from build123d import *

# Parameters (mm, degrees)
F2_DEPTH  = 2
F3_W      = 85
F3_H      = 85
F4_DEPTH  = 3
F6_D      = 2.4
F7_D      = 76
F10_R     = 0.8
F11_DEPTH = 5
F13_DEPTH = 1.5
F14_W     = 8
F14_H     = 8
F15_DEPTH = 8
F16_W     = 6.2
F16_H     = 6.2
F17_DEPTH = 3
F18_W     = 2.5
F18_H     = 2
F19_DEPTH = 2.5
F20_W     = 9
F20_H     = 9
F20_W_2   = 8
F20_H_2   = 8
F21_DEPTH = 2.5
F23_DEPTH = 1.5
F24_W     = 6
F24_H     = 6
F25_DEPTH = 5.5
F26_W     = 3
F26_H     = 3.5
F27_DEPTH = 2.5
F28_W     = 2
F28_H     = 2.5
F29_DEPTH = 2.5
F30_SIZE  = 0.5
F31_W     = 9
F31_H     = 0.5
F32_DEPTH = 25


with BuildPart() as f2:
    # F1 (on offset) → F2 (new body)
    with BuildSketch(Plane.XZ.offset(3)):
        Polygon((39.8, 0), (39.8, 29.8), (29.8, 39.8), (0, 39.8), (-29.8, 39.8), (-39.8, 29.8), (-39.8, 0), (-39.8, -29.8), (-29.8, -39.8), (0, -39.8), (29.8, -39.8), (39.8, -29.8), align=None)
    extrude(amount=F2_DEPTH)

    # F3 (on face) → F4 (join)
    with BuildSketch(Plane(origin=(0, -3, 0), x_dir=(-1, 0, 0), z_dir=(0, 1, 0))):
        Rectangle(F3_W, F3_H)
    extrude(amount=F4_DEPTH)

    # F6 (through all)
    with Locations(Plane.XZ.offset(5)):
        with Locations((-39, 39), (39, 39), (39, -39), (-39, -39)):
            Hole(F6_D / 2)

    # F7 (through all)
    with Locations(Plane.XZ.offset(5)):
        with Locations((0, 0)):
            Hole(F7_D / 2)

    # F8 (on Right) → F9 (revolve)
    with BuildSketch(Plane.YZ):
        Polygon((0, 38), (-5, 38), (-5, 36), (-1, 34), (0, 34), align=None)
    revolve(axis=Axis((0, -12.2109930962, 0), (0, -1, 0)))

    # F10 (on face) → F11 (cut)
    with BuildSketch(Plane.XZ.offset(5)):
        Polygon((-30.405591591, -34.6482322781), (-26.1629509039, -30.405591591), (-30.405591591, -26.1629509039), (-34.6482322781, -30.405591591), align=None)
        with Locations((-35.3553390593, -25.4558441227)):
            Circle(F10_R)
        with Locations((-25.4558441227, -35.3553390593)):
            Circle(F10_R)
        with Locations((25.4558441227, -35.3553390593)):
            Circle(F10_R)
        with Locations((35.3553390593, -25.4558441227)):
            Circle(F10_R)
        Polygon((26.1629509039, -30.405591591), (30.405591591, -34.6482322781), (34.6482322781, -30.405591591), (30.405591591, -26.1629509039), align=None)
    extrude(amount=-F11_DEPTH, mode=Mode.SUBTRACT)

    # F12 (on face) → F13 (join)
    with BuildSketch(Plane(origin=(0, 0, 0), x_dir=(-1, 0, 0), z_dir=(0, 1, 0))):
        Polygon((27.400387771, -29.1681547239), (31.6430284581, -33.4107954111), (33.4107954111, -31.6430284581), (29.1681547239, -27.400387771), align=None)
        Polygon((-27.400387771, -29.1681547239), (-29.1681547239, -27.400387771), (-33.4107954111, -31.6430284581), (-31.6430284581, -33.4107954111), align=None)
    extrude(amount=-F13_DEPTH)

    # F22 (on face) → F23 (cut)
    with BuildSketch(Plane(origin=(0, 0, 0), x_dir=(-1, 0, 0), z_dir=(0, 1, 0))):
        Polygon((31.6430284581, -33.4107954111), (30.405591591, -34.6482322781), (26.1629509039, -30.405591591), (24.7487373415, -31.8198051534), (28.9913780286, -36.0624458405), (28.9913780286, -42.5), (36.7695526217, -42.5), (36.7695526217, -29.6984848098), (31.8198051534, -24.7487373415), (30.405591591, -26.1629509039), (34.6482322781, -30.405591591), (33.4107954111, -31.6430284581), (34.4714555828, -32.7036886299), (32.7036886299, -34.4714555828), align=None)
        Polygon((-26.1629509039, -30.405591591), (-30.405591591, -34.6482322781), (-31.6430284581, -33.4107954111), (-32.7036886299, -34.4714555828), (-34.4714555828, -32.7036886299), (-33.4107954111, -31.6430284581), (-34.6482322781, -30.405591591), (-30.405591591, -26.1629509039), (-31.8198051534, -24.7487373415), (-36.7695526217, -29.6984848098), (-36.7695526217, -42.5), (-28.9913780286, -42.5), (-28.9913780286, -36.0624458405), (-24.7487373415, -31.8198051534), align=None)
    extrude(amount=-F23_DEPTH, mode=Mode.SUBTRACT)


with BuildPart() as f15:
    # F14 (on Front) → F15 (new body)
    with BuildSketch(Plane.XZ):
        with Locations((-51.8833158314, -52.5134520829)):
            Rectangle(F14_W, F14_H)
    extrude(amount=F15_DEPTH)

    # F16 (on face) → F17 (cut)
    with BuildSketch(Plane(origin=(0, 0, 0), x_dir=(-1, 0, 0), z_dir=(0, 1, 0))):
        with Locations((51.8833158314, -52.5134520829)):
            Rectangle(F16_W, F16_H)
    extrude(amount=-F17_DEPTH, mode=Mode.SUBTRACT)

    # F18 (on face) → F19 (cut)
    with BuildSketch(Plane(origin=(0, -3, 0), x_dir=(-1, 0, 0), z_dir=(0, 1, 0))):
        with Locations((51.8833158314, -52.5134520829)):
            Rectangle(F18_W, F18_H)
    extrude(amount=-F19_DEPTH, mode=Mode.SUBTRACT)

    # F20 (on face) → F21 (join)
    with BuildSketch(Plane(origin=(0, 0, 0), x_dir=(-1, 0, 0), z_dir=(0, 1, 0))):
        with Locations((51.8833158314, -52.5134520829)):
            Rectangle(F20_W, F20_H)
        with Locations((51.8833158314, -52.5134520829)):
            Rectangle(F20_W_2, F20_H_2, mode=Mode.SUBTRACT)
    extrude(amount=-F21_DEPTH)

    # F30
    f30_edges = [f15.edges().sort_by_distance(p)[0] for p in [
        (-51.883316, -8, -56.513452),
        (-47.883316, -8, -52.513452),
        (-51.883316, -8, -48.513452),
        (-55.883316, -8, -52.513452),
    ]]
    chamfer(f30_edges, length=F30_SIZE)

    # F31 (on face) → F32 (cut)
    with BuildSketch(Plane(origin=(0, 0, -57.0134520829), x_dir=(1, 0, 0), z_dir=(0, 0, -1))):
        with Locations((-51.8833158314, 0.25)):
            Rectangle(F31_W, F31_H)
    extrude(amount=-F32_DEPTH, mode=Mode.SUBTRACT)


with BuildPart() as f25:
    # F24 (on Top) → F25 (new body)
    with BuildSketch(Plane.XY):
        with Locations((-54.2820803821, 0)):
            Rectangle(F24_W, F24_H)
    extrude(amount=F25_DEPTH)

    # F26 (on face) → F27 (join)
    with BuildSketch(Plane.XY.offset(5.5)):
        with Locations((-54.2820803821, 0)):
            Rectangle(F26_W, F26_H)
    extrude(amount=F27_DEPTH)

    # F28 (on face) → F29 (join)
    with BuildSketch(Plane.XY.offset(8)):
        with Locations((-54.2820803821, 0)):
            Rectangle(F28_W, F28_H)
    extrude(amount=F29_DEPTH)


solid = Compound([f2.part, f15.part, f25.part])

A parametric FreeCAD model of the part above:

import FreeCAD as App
import Part
import Sketcher
Q = App.Units.Quantity


def edges_at(feature, points):
    """Names of the edges that pass closest to the given points."""
    edges = feature.Shape.Edges
    near = lambda p: min(range(len(edges)), key=lambda i: edges[i].distToShape(Part.Vertex(*p))[0])
    return sorted({f"Edge{near(p) + 1}" for p in points})


def add_polygon(sketch, points):
    """Adds a closed chain of lines whose ends are joined by coincident constraints."""
    first, n = sketch.GeometryCount, len(points)
    for a, b in zip(points, points[1:] + points[:1]):
        sketch.addGeometry(Part.LineSegment(App.Vector(*a, 0), App.Vector(*b, 0)), False)
    for i in range(n):
        sketch.addConstraint(Sketcher.Constraint("Coincident", first + i, 2, first + (i + 1) % n, 1))

doc = App.newDocument("Part")
body = doc.addObject("PartDesign::Body", "Body")

# Sketch on XZ plane
sketch1 = body.newObject("Sketcher::SketchObject", "Sketch")
sketch1.AttachmentSupport = (doc.getObject("XZ_Plane"), [""])
sketch1.MapMode = "FlatFace"
sketch1.AttachmentOffset = App.Placement(App.Vector(0, 0, 3), App.Rotation())
add_polygon(sketch1, [(40, 30), (30, 40), (-30, 40), (-40, 30), (-40, -30), (-30, -40), (30, -40), (40, -30)])  # lines 0-7
sketch1.addConstraint([
    Sketcher.Constraint("Horizontal", 1),
    Sketcher.Constraint("Vertical", 3),
    Sketcher.Constraint("Horizontal", 5),
    Sketcher.Constraint("Vertical", 7),
    Sketcher.Constraint("Symmetric", 0, 2, 4, 2, -1, 1),
    Sketcher.Constraint("Symmetric", 2, 2, 6, 2, -1, 1),
    Sketcher.Constraint("Perpendicular", 0, 2),
    Sketcher.Constraint("Perpendicular", 2, 4),
    Sketcher.Constraint("Perpendicular", 4, 6),
    Sketcher.Constraint("Horizontal", 3, 2, 6, 2),
    Sketcher.Constraint("Vertical", 1, 2, 4, 2),
    Sketcher.Constraint("Equal", 5, 3),
    Sketcher.Constraint("DistanceX", 1, 2, 1, 1, Q("59.6 mm")),
    Sketcher.Constraint("DistanceX", 2, 2, 1, 2, Q("10 mm")),
])
pad1 = body.newObject("PartDesign::Pad", "Pad")
pad1.Profile = sketch1
pad1.Length = 2

# Sketch on XZ plane
sketch2 = body.newObject("Sketcher::SketchObject", "Sketch001")
sketch2.AttachmentSupport = (doc.getObject("XZ_Plane"), [""])
sketch2.MapMode = "FlatFace"
sketch2.AttachmentOffset = App.Placement(App.Vector(0, 0, 3), App.Rotation())
add_polygon(sketch2, [(42, 42), (42, -42), (-42, -42), (-42, 42)])  # lines 0-3
sketch2.addConstraint([
    Sketcher.Constraint("Vertical", 0),
    Sketcher.Constraint("Horizontal", 1),
    Sketcher.Constraint("Vertical", 2),
    Sketcher.Constraint("Horizontal", 3),
    Sketcher.Constraint("Symmetric", 0, 2, 2, 2, -1, 1),
    Sketcher.Constraint("Equal", 3, 0),
    Sketcher.Constraint("DistanceX", 1, 2, 1, 1, Q("85 mm")),
])
pad2 = body.newObject("PartDesign::Pad", "Pad001")
pad2.Profile = sketch2
pad2.Length = 3
pad2.Reversed = True

# Sketch on XZ plane
sketch3 = body.newObject("Sketcher::SketchObject", "Sketch002")
sketch3.AttachmentSupport = (doc.getObject("XZ_Plane"), [""])
sketch3.MapMode = "FlatFace"
sketch3.AttachmentOffset = App.Placement(App.Vector(0, 0, 5), App.Rotation())
sketch3.addGeometry([
    Part.Circle(App.Vector(-39, 39, 0), App.Vector(0, 0, 1), 1.2),
    Part.Circle(App.Vector(39, 39, 0), App.Vector(0, 0, 1), 1.2),
    Part.Circle(App.Vector(39, -39, 0), App.Vector(0, 0, 1), 1.2),
    Part.Circle(App.Vector(-39, -39, 0), App.Vector(0, 0, 1), 1.2),
], False)
sketch3.addConstraint([
    Sketcher.Constraint("Equal", 0, 1),
    Sketcher.Constraint("Equal", 1, 2),
    Sketcher.Constraint("Equal", 2, 3),
    Sketcher.Constraint("Symmetric", 0, 3, 2, 3, -1, 1),
    Sketcher.Constraint("Symmetric", 1, 3, 3, 3, -1, 1),
    Sketcher.Constraint("Symmetric", 0, 3, 1, 3, -2),
    Sketcher.Constraint("Diameter", 0, Q("2.4 mm")),
    Sketcher.Constraint("DistanceX", 0, 3, -1, 1, Q("39 mm")),
    Sketcher.Constraint("DistanceY", -1, 1, 0, 3, Q("39 mm")),
])
doc.recompute()
hole = body.newObject("PartDesign::Hole", "Hole")
hole.Profile = sketch3
hole.ThreadType = "None"
hole.Diameter = 2.4
hole.DepthType = "ThroughAll"

# Sketch on XZ plane
sketch4 = body.newObject("Sketcher::SketchObject", "Sketch003")
sketch4.AttachmentSupport = (doc.getObject("XZ_Plane"), [""])
sketch4.MapMode = "FlatFace"
sketch4.AttachmentOffset = App.Placement(App.Vector(0, 0, 5), App.Rotation())
sketch4.addGeometry(Part.Circle(App.Vector(0, 0, 0), App.Vector(0, 0, 1), 38), False)
sketch4.addConstraint([
    Sketcher.Constraint("Coincident", 0, 3, -1, 1),
    Sketcher.Constraint("Diameter", 0, Q("76 mm")),
])
doc.recompute()
hole2 = body.newObject("PartDesign::Hole", "Hole001")
hole2.Profile = sketch4
hole2.ThreadType = "None"
hole2.Diameter = 76
hole2.DepthType = "ThroughAll"

# Sketch on YZ plane
sketch5 = body.newObject("Sketcher::SketchObject", "Sketch004")
sketch5.AttachmentSupport = (doc.getObject("YZ_Plane"), [""])
sketch5.MapMode = "FlatFace"
add_polygon(sketch5, [(0, 38), (-5, 38), (-5, 36), (-1, 34), (0, 34)])  # lines 0-4
sketch5.addConstraint([
    Sketcher.Constraint("Horizontal", 0),
    Sketcher.Constraint("Vertical", 1),
    Sketcher.Constraint("Horizontal", 3),
    Sketcher.Constraint("Vertical", 4),
    Sketcher.Constraint("PointOnObject", 3, 2, -2),
    Sketcher.Constraint("DistanceX", 0, 2, 0, 1, Q("5 mm")),
    Sketcher.Constraint("DistanceX", 3, 1, 3, 2, Q("1 mm")),
    Sketcher.Constraint("DistanceY", 1, 2, 1, 1, Q("2 mm")),
    Sketcher.Constraint("DistanceY", 4, 1, 4, 2, Q("4 mm")),
    Sketcher.Constraint("DistanceY", -1, 1, 0, 2, Q("38 mm")),
])
revolution = body.newObject("PartDesign::Revolution", "Revolution")
revolution.Profile = sketch5
revolution.ReferenceAxis = (sketch5, ["H_Axis"])
revolution.Angle = 360

# Sketch on XZ plane
sketch6 = body.newObject("Sketcher::SketchObject", "Sketch005")
sketch6.AttachmentSupport = (doc.getObject("XZ_Plane"), [""])
sketch6.MapMode = "FlatFace"
sketch6.AttachmentOffset = App.Placement(App.Vector(0, 0, 5), App.Rotation())
add_polygon(sketch6, [(-30.4, -34.6), (-26.2, -30.4), (-30.4, -26.2), (-34.6, -30.4)])  # lines 0-3
sketch6.addGeometry(Part.Circle(App.Vector(-35.4, -25.5, 0), App.Vector(0, 0, 1), 0.8), False)  # 4
sketch6.addGeometry(Part.Circle(App.Vector(-25.5, -35.4, 0), App.Vector(0, 0, 1), 0.8), False)  # 5
sketch6.addGeometry(Part.Circle(App.Vector(25.5, -35.4, 0), App.Vector(0, 0, 1), 0.8), False)  # 6
sketch6.addGeometry(Part.Circle(App.Vector(35.4, -25.5, 0), App.Vector(0, 0, 1), 0.8), False)  # 7
add_polygon(sketch6, [(26.2, -30.4), (30.4, -34.6), (34.6, -30.4), (30.4, -26.2)])  # lines 8-11
sketch6.addConstraint([
    Sketcher.Constraint("Equal", 4, 5),
    Sketcher.Constraint("Equal", 5, 6),
    Sketcher.Constraint("Equal", 6, 7),
    Sketcher.Constraint("Symmetric", 5, 3, 6, 3, -2),
    Sketcher.Constraint("Symmetric", 4, 3, 7, 3, -2),
    Sketcher.Constraint("Symmetric", 3, 2, 8, 2, -2),
    Sketcher.Constraint("Symmetric", 2, 2, 9, 2, -2),
    Sketcher.Constraint("Symmetric", 1, 2, 10, 2, -2),
    Sketcher.Constraint("Symmetric", 0, 2, 11, 2, -2),
    Sketcher.Constraint("Perpendicular", 0, 1),
    Sketcher.Constraint("Perpendicular", 1, 2),
    Sketcher.Constraint("Perpendicular", 2, 3),
    Sketcher.Constraint("Parallel", 3, 8),
    Sketcher.Constraint("Horizontal", 0, 2, 2, 2),
    Sketcher.Constraint("Diameter", 4, Q("1.6 mm")),
    Sketcher.Constraint("Distance", 0, Q("6 mm")),
    Sketcher.Constraint("DistanceX", 4, 3, -1, 1, Q("35.355339 mm")),
    Sketcher.Constraint("DistanceY", 5, 3, -1, 1, Q("35.355339 mm")),
    Sketcher.Constraint("DistanceX", 0, 2, -1, 1, Q("26.162951 mm")),
    Sketcher.Constraint("DistanceY", 0, 2, -1, 1, Q("30.405592 mm")),
    Sketcher.Constraint("DistanceX", 5, 3, 6, 3, Q("50.911688 mm")),
    Sketcher.Constraint("DistanceY", 3, 2, 4, 3, Q("9.192388 mm")),
])
pocket1 = body.newObject("PartDesign::Pocket", "Pocket")
pocket1.Profile = sketch6
pocket1.Length = 5

# Sketch on XZ plane
sketch7 = body.newObject("Sketcher::SketchObject", "Sketch006")
sketch7.AttachmentSupport = (doc.getObject("XZ_Plane"), [""])
sketch7.MapMode = "FlatFace"
add_polygon(sketch7, [(-27.4, -29.2), (-31.6, -33.4), (-33.4, -31.6), (-29.2, -27.4)])  # lines 0-3
add_polygon(sketch7, [(27.4, -29.2), (29.2, -27.4), (33.4, -31.6), (31.6, -33.4)])  # lines 4-7
sketch7.addConstraint([
    Sketcher.Constraint("Symmetric", 2, 2, 4, 2, -2),
    Sketcher.Constraint("Symmetric", 1, 2, 5, 2, -2),
    Sketcher.Constraint("Symmetric", 0, 2, 6, 2, -2),
    Sketcher.Constraint("Symmetric", 3, 2, 7, 2, -2),
    Sketcher.Constraint("Perpendicular", 0, 1),
    Sketcher.Constraint("Perpendicular", 1, 2),
    Sketcher.Constraint("Perpendicular", 2, 3),
    Sketcher.Constraint("Perpendicular", 3, 4),
    Sketcher.Constraint("Distance", 0, Q("6 mm")),
    Sketcher.Constraint("Distance", 1, Q("2.5 mm")),
    Sketcher.Constraint("DistanceX", 0, 2, -1, 1, Q("31.643028 mm")),
    Sketcher.Constraint("DistanceY", 1, 2, -1, 1, Q("31.643028 mm")),
])
pad3 = body.newObject("PartDesign::Pad", "Pad002")
pad3.Profile = sketch7
pad3.Length = 1.5

# Sketch on XZ plane
sketch8 = body.newObject("Sketcher::SketchObject", "Sketch007")
sketch8.AttachmentSupport = (doc.getObject("XZ_Plane"), [""])
sketch8.MapMode = "FlatFace"
add_polygon(sketch8, [(-31.6, -33.4), (-30.4, -34.6), (-26.2, -30.4), (-24.7, -31.8), (-29, -36.1), (-29, -42.5), (-36.8, -42.5), (-36.8, -29.7), (-31.8, -24.7), (-30.4, -26.2), (-34.6, -30.4), (-33.4, -31.6), (-34.5, -32.7), (-32.7, -34.5)])  # lines 0-13
add_polygon(sketch8, [(26.2, -30.4), (30.4, -34.6), (31.6, -33.4), (32.7, -34.5), (34.5, -32.7), (33.4, -31.6), (34.6, -30.4), (30.4, -26.2), (31.8, -24.7), (36.8, -29.7), (36.8, -42.5), (29, -42.5), (29, -36.1), (24.7, -31.8)])  # lines 14-27
sketch8.addConstraint([
    Sketcher.Constraint("Vertical", 4),
    Sketcher.Constraint("Horizontal", 5),
    Sketcher.Constraint("Vertical", 6),
    Sketcher.Constraint("Vertical", 23),
    Sketcher.Constraint("Horizontal", 24),
    Sketcher.Constraint("Vertical", 25),
    Sketcher.Constraint("Symmetric", 0, 2, 14, 2, -2),
    Sketcher.Constraint("Symmetric", 13, 2, 15, 2, -2),
    Sketcher.Constraint("Symmetric", 12, 2, 16, 2, -2),
    Sketcher.Constraint("Symmetric", 11, 2, 17, 2, -2),
    Sketcher.Constraint("Symmetric", 10, 2, 18, 2, -2),
    Sketcher.Constraint("Symmetric", 9, 2, 19, 2, -2),
    Sketcher.Constraint("Symmetric", 8, 2, 20, 2, -2),
    Sketcher.Constraint("Symmetric", 7, 2, 21, 2, -2),
    Sketcher.Constraint("Symmetric", 6, 2, 22, 2, -2),
    Sketcher.Constraint("Symmetric", 4, 2, 24, 2, -2),
    Sketcher.Constraint("Symmetric", 2, 2, 26, 2, -2),
    Sketcher.Constraint("Symmetric", 1, 2, 27, 2, -2),
    Sketcher.Constraint("Perpendicular", 0, 1),
    Sketcher.Constraint("Perpendicular", 1, 2),
    Sketcher.Constraint("Perpendicular", 2, 3),
    Sketcher.Constraint("Parallel", 3, 7),
    Sketcher.Constraint("Perpendicular", 7, 8),
    Sketcher.Constraint("Perpendicular", 8, 9),
    Sketcher.Constraint("Perpendicular", 9, 10),
    Sketcher.Constraint("Perpendicular", 10, 11),
    Sketcher.Constraint("Perpendicular", 11, 12),
    Sketcher.Constraint("Perpendicular", 12, 13),
    Sketcher.Constraint("Perpendicular", 13, 14),
    Sketcher.Constraint("Parallel", 22, 26),
    Sketcher.Constraint("Horizontal", 1, 2, 9, 2),
    Sketcher.Constraint("Vertical", 0, 2, 8, 2),
    Sketcher.Constraint("Equal", 1, 3),
    Sketcher.Constraint("Equal", 2, 8),
    Sketcher.Constraint("Equal", 3, 9),
    Sketcher.Constraint("Equal", 0, 10),
    Sketcher.Constraint("Distance", 1, Q("6 mm")),
    Sketcher.Constraint("Distance", 2, Q("2 mm")),
    Sketcher.Constraint("Distance", 7, Q("7 mm")),
    Sketcher.Constraint("Distance", 11, Q("1.5 mm")),
    Sketcher.Constraint("Distance", 12, Q("2.5 mm")),
    Sketcher.Constraint("DistanceY", 4, 2, -1, 1, Q("42.5 mm")),
    Sketcher.Constraint("DistanceY", 4, 2, 4, 1, Q("6.437554 mm")),
    Sketcher.Constraint("DistanceX", 0, 2, -1, 1, Q("30.405592 mm")),
])
pocket2 = body.newObject("PartDesign::Pocket", "Pocket001")
pocket2.Profile = sketch8
pocket2.Length = 1.5
pocket2.Reversed = True
body2 = doc.addObject("PartDesign::Body", "Body001")

# Sketch on XZ plane
sketch9 = body2.newObject("Sketcher::SketchObject", "Sketch008")
sketch9.AttachmentSupport = (doc.getObject("XZ_Plane001"), [""])
sketch9.MapMode = "FlatFace"
add_polygon(sketch9, [(-56, -49), (-56, -57), (-48, -57), (-48, -49)])  # lines 0-3
sketch9.addConstraint([
    Sketcher.Constraint("Vertical", 0),
    Sketcher.Constraint("Horizontal", 1),
    Sketcher.Constraint("Vertical", 2),
    Sketcher.Constraint("Horizontal", 3),
    Sketcher.Constraint("Equal", 3, 0),
    Sketcher.Constraint("DistanceX", 1, 1, 1, 2, Q("8 mm")),
    Sketcher.Constraint("DistanceX", 0, 2, -1, 1, Q("55.883316 mm")),
    Sketcher.Constraint("DistanceY", 0, 2, -1, 1, Q("56.513452 mm")),
])
pad4 = body2.newObject("PartDesign::Pad", "Pad003")
pad4.Profile = sketch9
pad4.Length = 8

# Sketch on XZ plane
sketch10 = body2.newObject("Sketcher::SketchObject", "Sketch009")
sketch10.AttachmentSupport = (doc.getObject("XZ_Plane001"), [""])
sketch10.MapMode = "FlatFace"
add_polygon(sketch10, [(-49, -49), (-49, -56), (-55, -56), (-55, -49)])  # lines 0-3
sketch10.addConstraint([
    Sketcher.Constraint("Vertical", 0),
    Sketcher.Constraint("Horizontal", 1),
    Sketcher.Constraint("Vertical", 2),
    Sketcher.Constraint("Horizontal", 3),
    Sketcher.Constraint("Equal", 3, 0),
    Sketcher.Constraint("DistanceX", 1, 2, 1, 1, Q("6.2 mm")),
    Sketcher.Constraint("DistanceX", 0, 2, -1, 1, Q("48.783316 mm")),
    Sketcher.Constraint("DistanceY", 0, 2, -1, 1, Q("55.613452 mm")),
])
pocket3 = body2.newObject("PartDesign::Pocket", "Pocket002")
pocket3.Profile = sketch10
pocket3.Length = 3
pocket3.Reversed = True

# Sketch on XZ plane
sketch11 = body2.newObject("Sketcher::SketchObject", "Sketch010")
sketch11.AttachmentSupport = (doc.getObject("XZ_Plane001"), [""])
sketch11.MapMode = "FlatFace"
sketch11.AttachmentOffset = App.Placement(App.Vector(0, 0, 3), App.Rotation())
add_polygon(sketch11, [(-50.6, -51.5), (-50.6, -53.5), (-53.1, -53.5), (-53.1, -51.5)])  # lines 0-3
sketch11.addConstraint([
    Sketcher.Constraint("Vertical", 0),
    Sketcher.Constraint("Horizontal", 1),
    Sketcher.Constraint("Vertical", 2),
    Sketcher.Constraint("Horizontal", 3),
    Sketcher.Constraint("DistanceY", 0, 2, 0, 1, Q("2 mm")),
    Sketcher.Constraint("DistanceX", 1, 2, 1, 1, Q("2.5 mm")),
    Sketcher.Constraint("DistanceX", 0, 2, -1, 1, Q("50.633316 mm")),
    Sketcher.Constraint("DistanceY", 0, 2, -1, 1, Q("53.513452 mm")),
])
pocket4 = body2.newObject("PartDesign::Pocket", "Pocket003")
pocket4.Profile = sketch11
pocket4.Length = 2.5
pocket4.Reversed = True

# Sketch on XZ plane
sketch12 = body2.newObject("Sketcher::SketchObject", "Sketch011")
sketch12.AttachmentSupport = (doc.getObject("XZ_Plane001"), [""])
sketch12.MapMode = "FlatFace"
add_polygon(sketch12, [(-47, -48), (-47, -57), (-56, -57), (-56, -48)])  # lines 0-3
add_polygon(sketch12, [(-56, -57), (-48, -57), (-48, -49), (-56, -49)])  # lines 4-7
sketch12.addConstraint([
    Sketcher.Constraint("Vertical", 0),
    Sketcher.Constraint("Horizontal", 1),
    Sketcher.Constraint("Vertical", 2),
    Sketcher.Constraint("Horizontal", 3),
    Sketcher.Constraint("Horizontal", 4),
    Sketcher.Constraint("Vertical", 5),
    Sketcher.Constraint("Horizontal", 6),
    Sketcher.Constraint("Vertical", 7),
    Sketcher.Constraint("Equal", 3, 0),
    Sketcher.Constraint("Equal", 6, 5),
    Sketcher.Constraint("DistanceX", 1, 2, 1, 1, Q("9 mm")),
    Sketcher.Constraint("DistanceX", 4, 1, 4, 2, Q("8 mm")),
    Sketcher.Constraint("DistanceX", 4, 2, 0, 2, Q("0.5 mm")),
    Sketcher.Constraint("DistanceY", 0, 2, 4, 2, Q("0.5 mm")),
    Sketcher.Constraint("DistanceX", 0, 2, -1, 1, Q("47.383316 mm")),
    Sketcher.Constraint("DistanceY", 0, 2, -1, 1, Q("57.013452 mm")),
])
pad5 = body2.newObject("PartDesign::Pad", "Pad004")
pad5.Profile = sketch12
pad5.Length = 2.5
doc.recompute()

chamfer = body2.newObject("PartDesign::Chamfer", "Chamfer")
chamfer.Base = (pad5, edges_at(pad5, [
    (-51.883, -8, -56.513),
    (-47.883, -8, -52.513),
    (-51.883, -8, -48.513),
    (-55.883, -8, -52.513),
]))
chamfer.Size = 0.5

# Sketch on XY plane
sketch13 = body2.newObject("Sketcher::SketchObject", "Sketch012")
sketch13.AttachmentSupport = (doc.getObject("XY_Plane001"), [""])
sketch13.MapMode = "FlatFace"
sketch13.AttachmentOffset = App.Placement(App.Vector(0, 0, -57.013452), App.Rotation())
add_polygon(sketch13, [(-56.4, -0.5), (-56.4, 0), (-47.4, 0), (-47.4, -0.5)])  # lines 0-3
sketch13.addConstraint([
    Sketcher.Constraint("Vertical", 0),
    Sketcher.Constraint("Horizontal", 1),
    Sketcher.Constraint("Vertical", 2),
    Sketcher.Constraint("Horizontal", 3),
    Sketcher.Constraint("PointOnObject", 0, 2, -1),
    Sketcher.Constraint("DistanceX", 1, 1, 1, 2, Q("9 mm")),
    Sketcher.Constraint("DistanceY", 0, 1, 0, 2, Q("0.5 mm")),
    Sketcher.Constraint("DistanceX", 0, 2, -1, 1, Q("56.383316 mm")),
])
pocket5 = body2.newObject("PartDesign::Pocket", "Pocket004")
pocket5.Profile = sketch13
pocket5.Length = 25
pocket5.Reversed = True
body3 = doc.addObject("PartDesign::Body", "Body002")

# Sketch on XY plane
sketch14 = body3.newObject("Sketcher::SketchObject", "Sketch013")
sketch14.AttachmentSupport = (doc.getObject("XY_Plane002"), [""])
sketch14.MapMode = "FlatFace"
add_polygon(sketch14, [(-57, 3), (-57, -3), (-51, -3), (-51, 3)])  # lines 0-3
sketch14.addConstraint([
    Sketcher.Constraint("Vertical", 0),
    Sketcher.Constraint("Horizontal", 1),
    Sketcher.Constraint("Vertical", 2),
    Sketcher.Constraint("Horizontal", 3),
    Sketcher.Constraint("Equal", 3, 0),
    Sketcher.Constraint("DistanceX", 1, 1, 1, 2, Q("6 mm")),
    Sketcher.Constraint("DistanceY", 0, 2, -1, 1, Q("3 mm")),
    Sketcher.Constraint("DistanceX", 0, 2, -1, 1, Q("57.28208 mm")),
])
pad6 = body3.newObject("PartDesign::Pad", "Pad005")
pad6.Profile = sketch14
pad6.Length = 5.5

# Sketch on XY plane
sketch15 = body3.newObject("Sketcher::SketchObject", "Sketch014")
sketch15.AttachmentSupport = (doc.getObject("XY_Plane002"), [""])
sketch15.MapMode = "FlatFace"
sketch15.AttachmentOffset = App.Placement(App.Vector(0, 0, 5.5), App.Rotation())
add_polygon(sketch15, [(-55.8, 1.8), (-55.8, -1.8), (-52.8, -1.8), (-52.8, 1.8)])  # lines 0-3
sketch15.addConstraint([
    Sketcher.Constraint("Vertical", 0),
    Sketcher.Constraint("Horizontal", 1),
    Sketcher.Constraint("Vertical", 2),
    Sketcher.Constraint("Horizontal", 3),
    Sketcher.Constraint("DistanceX", 1, 1, 1, 2, Q("3 mm")),
    Sketcher.Constraint("DistanceY", 0, 2, 0, 1, Q("3.5 mm")),
    Sketcher.Constraint("DistanceY", 0, 2, -1, 1, Q("1.75 mm")),
    Sketcher.Constraint("DistanceX", 0, 2, -1, 1, Q("55.78208 mm")),
])
pad7 = body3.newObject("PartDesign::Pad", "Pad006")
pad7.Profile = sketch15
pad7.Length = 2.5

# Sketch on XY plane
sketch16 = body3.newObject("Sketcher::SketchObject", "Sketch015")
sketch16.AttachmentSupport = (doc.getObject("XY_Plane002"), [""])
sketch16.MapMode = "FlatFace"
sketch16.AttachmentOffset = App.Placement(App.Vector(0, 0, 8), App.Rotation())
add_polygon(sketch16, [(-55.3, 1.2), (-55.3, -1.2), (-53.3, -1.2), (-53.3, 1.2)])  # lines 0-3
sketch16.addConstraint([
    Sketcher.Constraint("Vertical", 0),
    Sketcher.Constraint("Horizontal", 1),
    Sketcher.Constraint("Vertical", 2),
    Sketcher.Constraint("Horizontal", 3),
    Sketcher.Constraint("DistanceX", 1, 1, 1, 2, Q("2 mm")),
    Sketcher.Constraint("DistanceY", 0, 2, 0, 1, Q("2.5 mm")),
    Sketcher.Constraint("DistanceY", 0, 2, -1, 1, Q("1.25 mm")),
    Sketcher.Constraint("DistanceX", 0, 2, -1, 1, Q("55.28208 mm")),
])
pad8 = body3.newObject("PartDesign::Pad", "Pad007")
pad8.Profile = sketch16
pad8.Length = 2.5

doc.recompute()
